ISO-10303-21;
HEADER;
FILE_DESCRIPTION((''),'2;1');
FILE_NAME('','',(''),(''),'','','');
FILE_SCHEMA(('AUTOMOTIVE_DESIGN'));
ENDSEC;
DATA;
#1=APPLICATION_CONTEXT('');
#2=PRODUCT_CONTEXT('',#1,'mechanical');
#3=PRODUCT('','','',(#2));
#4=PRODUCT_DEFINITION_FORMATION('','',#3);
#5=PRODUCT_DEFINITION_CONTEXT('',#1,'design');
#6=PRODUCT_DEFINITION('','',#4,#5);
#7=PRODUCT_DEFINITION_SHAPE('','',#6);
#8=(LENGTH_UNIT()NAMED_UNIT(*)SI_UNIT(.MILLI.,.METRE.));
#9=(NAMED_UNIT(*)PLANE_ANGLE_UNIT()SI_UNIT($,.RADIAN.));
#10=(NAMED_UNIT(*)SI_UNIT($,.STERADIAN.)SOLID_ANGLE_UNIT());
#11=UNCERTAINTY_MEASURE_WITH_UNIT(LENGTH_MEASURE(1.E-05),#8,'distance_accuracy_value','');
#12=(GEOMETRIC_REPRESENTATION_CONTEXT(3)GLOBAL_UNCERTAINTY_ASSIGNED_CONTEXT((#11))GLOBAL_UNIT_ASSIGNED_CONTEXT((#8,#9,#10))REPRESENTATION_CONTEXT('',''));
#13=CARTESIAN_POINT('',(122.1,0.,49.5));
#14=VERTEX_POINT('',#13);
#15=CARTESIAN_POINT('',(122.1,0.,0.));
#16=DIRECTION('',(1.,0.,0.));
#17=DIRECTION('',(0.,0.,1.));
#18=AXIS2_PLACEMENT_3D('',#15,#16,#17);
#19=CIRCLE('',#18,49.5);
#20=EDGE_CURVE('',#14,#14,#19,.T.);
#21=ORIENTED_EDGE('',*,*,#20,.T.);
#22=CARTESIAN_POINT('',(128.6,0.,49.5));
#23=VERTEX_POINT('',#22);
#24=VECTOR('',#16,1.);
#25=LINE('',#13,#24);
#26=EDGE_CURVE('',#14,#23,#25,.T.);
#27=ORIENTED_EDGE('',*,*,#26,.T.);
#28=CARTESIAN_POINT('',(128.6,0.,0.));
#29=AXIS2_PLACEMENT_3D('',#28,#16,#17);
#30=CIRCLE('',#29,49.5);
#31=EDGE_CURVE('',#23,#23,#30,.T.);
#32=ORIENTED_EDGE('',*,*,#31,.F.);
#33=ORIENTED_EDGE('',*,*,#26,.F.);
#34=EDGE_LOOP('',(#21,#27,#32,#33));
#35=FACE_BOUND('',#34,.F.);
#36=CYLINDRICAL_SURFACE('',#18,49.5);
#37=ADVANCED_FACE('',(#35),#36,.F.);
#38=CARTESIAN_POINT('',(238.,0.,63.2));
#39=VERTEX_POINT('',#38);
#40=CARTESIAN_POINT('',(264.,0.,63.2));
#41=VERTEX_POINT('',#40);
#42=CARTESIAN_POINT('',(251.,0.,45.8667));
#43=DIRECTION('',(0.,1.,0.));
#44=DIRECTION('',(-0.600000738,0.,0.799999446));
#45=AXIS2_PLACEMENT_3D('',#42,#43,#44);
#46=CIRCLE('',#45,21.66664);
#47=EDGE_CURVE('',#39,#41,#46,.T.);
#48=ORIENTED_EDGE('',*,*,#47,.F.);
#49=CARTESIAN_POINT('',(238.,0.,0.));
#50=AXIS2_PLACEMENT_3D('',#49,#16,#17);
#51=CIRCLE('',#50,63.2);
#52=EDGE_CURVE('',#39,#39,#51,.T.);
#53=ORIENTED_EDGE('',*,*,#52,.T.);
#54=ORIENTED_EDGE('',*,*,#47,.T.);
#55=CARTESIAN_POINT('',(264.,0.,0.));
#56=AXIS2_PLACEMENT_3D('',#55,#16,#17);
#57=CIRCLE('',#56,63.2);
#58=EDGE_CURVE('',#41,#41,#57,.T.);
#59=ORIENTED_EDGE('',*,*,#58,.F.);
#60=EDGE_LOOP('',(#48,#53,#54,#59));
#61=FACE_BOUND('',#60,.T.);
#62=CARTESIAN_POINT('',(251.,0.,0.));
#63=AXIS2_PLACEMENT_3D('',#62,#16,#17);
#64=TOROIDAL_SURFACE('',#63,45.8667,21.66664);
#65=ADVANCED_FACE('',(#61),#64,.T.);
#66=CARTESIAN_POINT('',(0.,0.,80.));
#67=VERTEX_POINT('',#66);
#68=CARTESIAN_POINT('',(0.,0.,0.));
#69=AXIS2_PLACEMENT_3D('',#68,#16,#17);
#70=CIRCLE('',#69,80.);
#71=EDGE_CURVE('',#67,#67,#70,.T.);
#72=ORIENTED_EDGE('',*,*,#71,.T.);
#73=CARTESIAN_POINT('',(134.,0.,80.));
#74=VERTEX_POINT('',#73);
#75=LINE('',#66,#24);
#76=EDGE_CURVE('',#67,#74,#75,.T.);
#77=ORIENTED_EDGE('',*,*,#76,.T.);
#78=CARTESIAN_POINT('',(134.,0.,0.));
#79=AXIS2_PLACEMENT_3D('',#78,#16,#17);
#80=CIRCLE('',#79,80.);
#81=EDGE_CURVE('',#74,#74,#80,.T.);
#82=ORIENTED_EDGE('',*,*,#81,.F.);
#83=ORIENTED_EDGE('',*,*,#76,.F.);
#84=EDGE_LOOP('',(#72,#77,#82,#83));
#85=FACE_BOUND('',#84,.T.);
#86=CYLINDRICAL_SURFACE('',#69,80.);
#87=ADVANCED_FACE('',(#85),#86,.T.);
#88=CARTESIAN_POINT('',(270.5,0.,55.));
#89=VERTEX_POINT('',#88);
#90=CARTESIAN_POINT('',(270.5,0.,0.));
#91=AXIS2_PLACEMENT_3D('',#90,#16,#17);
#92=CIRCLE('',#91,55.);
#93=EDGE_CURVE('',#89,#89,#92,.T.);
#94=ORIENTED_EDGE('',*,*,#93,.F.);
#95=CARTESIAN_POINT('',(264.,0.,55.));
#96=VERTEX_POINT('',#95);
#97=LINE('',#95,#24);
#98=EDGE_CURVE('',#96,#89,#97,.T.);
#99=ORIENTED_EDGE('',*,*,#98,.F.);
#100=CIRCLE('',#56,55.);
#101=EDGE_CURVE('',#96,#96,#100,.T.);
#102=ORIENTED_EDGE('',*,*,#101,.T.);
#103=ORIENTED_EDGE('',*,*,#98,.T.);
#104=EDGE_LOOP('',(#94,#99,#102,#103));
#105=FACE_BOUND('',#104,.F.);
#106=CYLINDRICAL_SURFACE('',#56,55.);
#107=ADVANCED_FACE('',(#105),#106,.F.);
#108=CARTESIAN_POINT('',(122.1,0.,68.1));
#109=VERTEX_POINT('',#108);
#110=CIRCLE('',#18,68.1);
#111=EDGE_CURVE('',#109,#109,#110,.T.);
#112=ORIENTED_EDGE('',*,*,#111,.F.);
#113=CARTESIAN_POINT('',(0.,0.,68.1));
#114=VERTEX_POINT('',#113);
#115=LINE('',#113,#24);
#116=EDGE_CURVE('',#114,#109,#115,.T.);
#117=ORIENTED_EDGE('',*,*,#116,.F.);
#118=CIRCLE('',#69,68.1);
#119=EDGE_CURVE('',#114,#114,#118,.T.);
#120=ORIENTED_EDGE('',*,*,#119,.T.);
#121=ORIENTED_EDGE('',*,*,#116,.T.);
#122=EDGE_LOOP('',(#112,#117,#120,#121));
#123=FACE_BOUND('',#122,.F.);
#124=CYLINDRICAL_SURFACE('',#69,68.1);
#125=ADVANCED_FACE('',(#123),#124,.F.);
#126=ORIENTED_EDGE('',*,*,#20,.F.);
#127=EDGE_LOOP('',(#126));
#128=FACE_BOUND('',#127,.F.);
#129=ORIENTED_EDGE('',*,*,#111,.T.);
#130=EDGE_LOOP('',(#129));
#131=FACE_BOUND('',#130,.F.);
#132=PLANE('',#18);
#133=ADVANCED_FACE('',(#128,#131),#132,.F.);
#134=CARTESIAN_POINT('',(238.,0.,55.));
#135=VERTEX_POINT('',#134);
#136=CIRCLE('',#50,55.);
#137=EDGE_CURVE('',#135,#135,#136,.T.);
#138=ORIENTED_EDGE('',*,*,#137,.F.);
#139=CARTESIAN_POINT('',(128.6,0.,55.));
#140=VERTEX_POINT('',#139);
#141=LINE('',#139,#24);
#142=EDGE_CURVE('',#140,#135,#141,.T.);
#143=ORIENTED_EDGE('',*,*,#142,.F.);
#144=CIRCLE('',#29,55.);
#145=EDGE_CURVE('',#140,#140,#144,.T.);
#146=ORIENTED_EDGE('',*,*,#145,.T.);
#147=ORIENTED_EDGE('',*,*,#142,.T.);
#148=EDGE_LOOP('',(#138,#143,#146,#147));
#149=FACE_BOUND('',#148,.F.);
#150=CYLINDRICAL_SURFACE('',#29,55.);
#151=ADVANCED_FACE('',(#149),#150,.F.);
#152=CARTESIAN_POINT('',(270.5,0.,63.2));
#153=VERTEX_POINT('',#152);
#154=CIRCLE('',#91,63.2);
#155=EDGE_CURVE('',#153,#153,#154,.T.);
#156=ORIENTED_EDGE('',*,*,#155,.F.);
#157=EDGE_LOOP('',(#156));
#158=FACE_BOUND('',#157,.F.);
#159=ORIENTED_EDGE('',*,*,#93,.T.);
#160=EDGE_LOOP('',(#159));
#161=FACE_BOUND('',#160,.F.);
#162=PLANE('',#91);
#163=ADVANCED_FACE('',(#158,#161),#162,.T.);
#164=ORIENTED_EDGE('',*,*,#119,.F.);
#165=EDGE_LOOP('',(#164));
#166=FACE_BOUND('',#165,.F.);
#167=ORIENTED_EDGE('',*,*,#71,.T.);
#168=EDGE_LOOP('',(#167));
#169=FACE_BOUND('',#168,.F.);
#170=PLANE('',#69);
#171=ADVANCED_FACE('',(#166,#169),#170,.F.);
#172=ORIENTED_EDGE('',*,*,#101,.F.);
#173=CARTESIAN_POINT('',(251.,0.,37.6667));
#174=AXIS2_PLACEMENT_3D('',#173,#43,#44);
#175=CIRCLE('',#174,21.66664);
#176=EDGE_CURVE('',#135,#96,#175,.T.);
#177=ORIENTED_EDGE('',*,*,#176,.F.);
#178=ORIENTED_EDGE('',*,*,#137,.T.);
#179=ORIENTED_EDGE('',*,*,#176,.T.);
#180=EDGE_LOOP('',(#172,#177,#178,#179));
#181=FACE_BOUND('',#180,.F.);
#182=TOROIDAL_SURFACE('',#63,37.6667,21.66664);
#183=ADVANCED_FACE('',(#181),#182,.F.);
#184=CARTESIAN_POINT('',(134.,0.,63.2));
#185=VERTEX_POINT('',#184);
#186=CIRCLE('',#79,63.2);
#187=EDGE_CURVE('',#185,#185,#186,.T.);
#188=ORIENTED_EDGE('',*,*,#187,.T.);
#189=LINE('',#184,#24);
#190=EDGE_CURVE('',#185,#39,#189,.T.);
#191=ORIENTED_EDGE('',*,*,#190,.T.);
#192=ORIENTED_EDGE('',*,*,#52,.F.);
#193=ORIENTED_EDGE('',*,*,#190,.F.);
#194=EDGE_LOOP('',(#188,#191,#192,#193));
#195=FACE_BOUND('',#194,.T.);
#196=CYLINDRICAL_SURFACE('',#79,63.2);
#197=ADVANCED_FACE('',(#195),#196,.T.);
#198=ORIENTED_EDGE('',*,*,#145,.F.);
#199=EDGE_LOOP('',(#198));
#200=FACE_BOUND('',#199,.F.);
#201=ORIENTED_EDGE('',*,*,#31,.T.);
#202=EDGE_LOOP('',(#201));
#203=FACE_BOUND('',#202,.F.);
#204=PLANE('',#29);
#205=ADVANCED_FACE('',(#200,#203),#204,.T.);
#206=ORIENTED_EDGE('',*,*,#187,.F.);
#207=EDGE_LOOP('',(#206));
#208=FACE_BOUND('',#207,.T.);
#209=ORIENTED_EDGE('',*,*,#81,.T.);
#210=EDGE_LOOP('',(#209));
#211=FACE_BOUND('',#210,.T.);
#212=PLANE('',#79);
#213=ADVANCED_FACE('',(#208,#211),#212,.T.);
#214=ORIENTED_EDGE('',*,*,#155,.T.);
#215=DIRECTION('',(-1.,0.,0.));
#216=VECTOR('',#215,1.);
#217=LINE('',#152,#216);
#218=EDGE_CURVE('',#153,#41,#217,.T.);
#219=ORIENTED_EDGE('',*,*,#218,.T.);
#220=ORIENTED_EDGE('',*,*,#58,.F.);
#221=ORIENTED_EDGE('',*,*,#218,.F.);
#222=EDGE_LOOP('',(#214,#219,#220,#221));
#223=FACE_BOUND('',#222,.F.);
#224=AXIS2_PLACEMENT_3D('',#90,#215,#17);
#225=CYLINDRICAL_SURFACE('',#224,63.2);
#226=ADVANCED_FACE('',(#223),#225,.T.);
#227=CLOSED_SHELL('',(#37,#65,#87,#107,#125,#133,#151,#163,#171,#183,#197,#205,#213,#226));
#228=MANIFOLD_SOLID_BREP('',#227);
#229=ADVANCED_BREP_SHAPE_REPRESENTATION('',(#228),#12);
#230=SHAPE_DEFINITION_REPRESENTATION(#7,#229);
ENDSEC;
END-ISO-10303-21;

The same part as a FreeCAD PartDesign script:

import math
import FreeCAD as App
import Part
import Sketcher
from FreeCAD import Vector
Q = App.Units.Quantity

doc = App.newDocument("Part")
body = doc.addObject("PartDesign::Body", "Body")

sketch1 = body.newObject("Sketcher::SketchObject", "Sketch")
sketch1.AttachmentSupport = (doc.getObject("XZ_Plane"), [""])
sketch1.MapMode = "FlatFace"
sketch1.addGeometry([
    Part.LineSegment(Vector(122, 68, 0), Vector(0, 68, 0)),
    Part.LineSegment(Vector(0, 68, 0), Vector(0, 80, 0)),
    Part.LineSegment(Vector(0, 80, 0), Vector(134, 80, 0)),
    Part.LineSegment(Vector(134, 80, 0), Vector(134, 63, 0)),
    Part.LineSegment(Vector(134, 63, 0), Vector(238, 63, 0)),
    Part.ArcOfCircle(Part.Circle(Vector(251, 46, 0), Vector(0, 0, 1), 22), math.radians(53), math.radians(127)),
    Part.LineSegment(Vector(264, 63, 0), Vector(270, 63, 0)),
    Part.LineSegment(Vector(270, 63, 0), Vector(270, 55, 0)),
    Part.LineSegment(Vector(270, 55, 0), Vector(264, 55, 0)),
    Part.ArcOfCircle(Part.Circle(Vector(251, 38, 0), Vector(0, 0, 1), 22), math.radians(53), math.radians(127)),
    Part.LineSegment(Vector(238, 55, 0), Vector(129, 55, 0)),
    Part.LineSegment(Vector(129, 55, 0), Vector(129, 50, 0)),
    Part.LineSegment(Vector(129, 50, 0), Vector(122, 50, 0)),
    Part.LineSegment(Vector(122, 50, 0), Vector(122, 68, 0)),
], False)
sketch1.addConstraint([
    Sketcher.Constraint("Coincident", 0, 2, 1, 1),
    Sketcher.Constraint("Coincident", 1, 2, 2, 1),
    Sketcher.Constraint("Coincident", 2, 2, 3, 1),
    Sketcher.Constraint("Coincident", 3, 2, 4, 1),
    Sketcher.Constraint("Coincident", 4, 2, 5, 2),
    Sketcher.Constraint("Coincident", 5, 1, 6, 1),
    Sketcher.Constraint("Coincident", 6, 2, 7, 1),
    Sketcher.Constraint("Coincident", 7, 2, 8, 1),
    Sketcher.Constraint("Coincident", 8, 2, 9, 1),
    Sketcher.Constraint("Coincident", 9, 2, 10, 1),
    Sketcher.Constraint("Coincident", 10, 2, 11, 1),
    Sketcher.Constraint("Coincident", 11, 2, 12, 1),
    Sketcher.Constraint("Coincident", 12, 2, 13, 1),
    Sketcher.Constraint("Coincident", 13, 2, 0, 1),
    Sketcher.Constraint("Horizontal", 0),
    Sketcher.Constraint("Vertical", 1),
    Sketcher.Constraint("Horizontal", 2),
    Sketcher.Constraint("Vertical", 3),
    Sketcher.Constraint("Horizontal", 4),
    Sketcher.Constraint("Horizontal", 6),
    Sketcher.Constraint("Vertical", 7),
    Sketcher.Constraint("Horizontal", 8),
    Sketcher.Constraint("Horizontal", 10),
    Sketcher.Constraint("Vertical", 11),
    Sketcher.Constraint("Horizontal", 12),
    Sketcher.Constraint("Vertical", 13),
    Sketcher.Constraint("Equal", 5, 9),
    Sketcher.Constraint("PointOnObject", 0, 2, -2),
    Sketcher.Constraint("Horizontal", 4, 2, 5, 1),
    Sketcher.Constraint("Horizontal", 8, 2, 9, 2),
    Sketcher.Constraint("Vertical", 5, 3, 9, 3),
    Sketcher.Constraint("Vertical", 5, 1, 8, 2),
    Sketcher.Constraint("Equal", 8, 12),
    Sketcher.Constraint("DistanceX", 2, 1, 2, 2, Q("134 mm")),
    Sketcher.Constraint("DistanceX", 0, 2, 0, 1, Q("122.1 mm")),
    Sketcher.Constraint("DistanceX", 6, 1, 6, 2, Q("6.5 mm")),
    Sketcher.Constraint("DistanceX", -1, 1, 4, 2, Q("238 mm")),
    Sketcher.Constraint("DistanceX", -1, 1, 6, 2, Q("270.5 mm")),
    Sketcher.Constraint("Radius", 5, Q("21.6666 mm")),
    Sketcher.Constraint("DistanceY", 1, 1, 1, 2, Q("11.9 mm")),
    Sketcher.Constraint("DistanceY", 3, 2, 3, 1, Q("16.8 mm")),
    Sketcher.Constraint("DistanceY", 7, 2, 7, 1, Q("8.2 mm")),
    Sketcher.Constraint("DistanceY", 11, 2, 11, 1, Q("5.5 mm")),
    Sketcher.Constraint("DistanceY", -1, 1, 1, 2, Q("80 mm")),
])
revolution = body.newObject("PartDesign::Revolution", "Revolution")
revolution.Profile = sketch1
revolution.ReferenceAxis = (sketch1, ["H_Axis"])
revolution.Angle = 360

doc.recompute()
